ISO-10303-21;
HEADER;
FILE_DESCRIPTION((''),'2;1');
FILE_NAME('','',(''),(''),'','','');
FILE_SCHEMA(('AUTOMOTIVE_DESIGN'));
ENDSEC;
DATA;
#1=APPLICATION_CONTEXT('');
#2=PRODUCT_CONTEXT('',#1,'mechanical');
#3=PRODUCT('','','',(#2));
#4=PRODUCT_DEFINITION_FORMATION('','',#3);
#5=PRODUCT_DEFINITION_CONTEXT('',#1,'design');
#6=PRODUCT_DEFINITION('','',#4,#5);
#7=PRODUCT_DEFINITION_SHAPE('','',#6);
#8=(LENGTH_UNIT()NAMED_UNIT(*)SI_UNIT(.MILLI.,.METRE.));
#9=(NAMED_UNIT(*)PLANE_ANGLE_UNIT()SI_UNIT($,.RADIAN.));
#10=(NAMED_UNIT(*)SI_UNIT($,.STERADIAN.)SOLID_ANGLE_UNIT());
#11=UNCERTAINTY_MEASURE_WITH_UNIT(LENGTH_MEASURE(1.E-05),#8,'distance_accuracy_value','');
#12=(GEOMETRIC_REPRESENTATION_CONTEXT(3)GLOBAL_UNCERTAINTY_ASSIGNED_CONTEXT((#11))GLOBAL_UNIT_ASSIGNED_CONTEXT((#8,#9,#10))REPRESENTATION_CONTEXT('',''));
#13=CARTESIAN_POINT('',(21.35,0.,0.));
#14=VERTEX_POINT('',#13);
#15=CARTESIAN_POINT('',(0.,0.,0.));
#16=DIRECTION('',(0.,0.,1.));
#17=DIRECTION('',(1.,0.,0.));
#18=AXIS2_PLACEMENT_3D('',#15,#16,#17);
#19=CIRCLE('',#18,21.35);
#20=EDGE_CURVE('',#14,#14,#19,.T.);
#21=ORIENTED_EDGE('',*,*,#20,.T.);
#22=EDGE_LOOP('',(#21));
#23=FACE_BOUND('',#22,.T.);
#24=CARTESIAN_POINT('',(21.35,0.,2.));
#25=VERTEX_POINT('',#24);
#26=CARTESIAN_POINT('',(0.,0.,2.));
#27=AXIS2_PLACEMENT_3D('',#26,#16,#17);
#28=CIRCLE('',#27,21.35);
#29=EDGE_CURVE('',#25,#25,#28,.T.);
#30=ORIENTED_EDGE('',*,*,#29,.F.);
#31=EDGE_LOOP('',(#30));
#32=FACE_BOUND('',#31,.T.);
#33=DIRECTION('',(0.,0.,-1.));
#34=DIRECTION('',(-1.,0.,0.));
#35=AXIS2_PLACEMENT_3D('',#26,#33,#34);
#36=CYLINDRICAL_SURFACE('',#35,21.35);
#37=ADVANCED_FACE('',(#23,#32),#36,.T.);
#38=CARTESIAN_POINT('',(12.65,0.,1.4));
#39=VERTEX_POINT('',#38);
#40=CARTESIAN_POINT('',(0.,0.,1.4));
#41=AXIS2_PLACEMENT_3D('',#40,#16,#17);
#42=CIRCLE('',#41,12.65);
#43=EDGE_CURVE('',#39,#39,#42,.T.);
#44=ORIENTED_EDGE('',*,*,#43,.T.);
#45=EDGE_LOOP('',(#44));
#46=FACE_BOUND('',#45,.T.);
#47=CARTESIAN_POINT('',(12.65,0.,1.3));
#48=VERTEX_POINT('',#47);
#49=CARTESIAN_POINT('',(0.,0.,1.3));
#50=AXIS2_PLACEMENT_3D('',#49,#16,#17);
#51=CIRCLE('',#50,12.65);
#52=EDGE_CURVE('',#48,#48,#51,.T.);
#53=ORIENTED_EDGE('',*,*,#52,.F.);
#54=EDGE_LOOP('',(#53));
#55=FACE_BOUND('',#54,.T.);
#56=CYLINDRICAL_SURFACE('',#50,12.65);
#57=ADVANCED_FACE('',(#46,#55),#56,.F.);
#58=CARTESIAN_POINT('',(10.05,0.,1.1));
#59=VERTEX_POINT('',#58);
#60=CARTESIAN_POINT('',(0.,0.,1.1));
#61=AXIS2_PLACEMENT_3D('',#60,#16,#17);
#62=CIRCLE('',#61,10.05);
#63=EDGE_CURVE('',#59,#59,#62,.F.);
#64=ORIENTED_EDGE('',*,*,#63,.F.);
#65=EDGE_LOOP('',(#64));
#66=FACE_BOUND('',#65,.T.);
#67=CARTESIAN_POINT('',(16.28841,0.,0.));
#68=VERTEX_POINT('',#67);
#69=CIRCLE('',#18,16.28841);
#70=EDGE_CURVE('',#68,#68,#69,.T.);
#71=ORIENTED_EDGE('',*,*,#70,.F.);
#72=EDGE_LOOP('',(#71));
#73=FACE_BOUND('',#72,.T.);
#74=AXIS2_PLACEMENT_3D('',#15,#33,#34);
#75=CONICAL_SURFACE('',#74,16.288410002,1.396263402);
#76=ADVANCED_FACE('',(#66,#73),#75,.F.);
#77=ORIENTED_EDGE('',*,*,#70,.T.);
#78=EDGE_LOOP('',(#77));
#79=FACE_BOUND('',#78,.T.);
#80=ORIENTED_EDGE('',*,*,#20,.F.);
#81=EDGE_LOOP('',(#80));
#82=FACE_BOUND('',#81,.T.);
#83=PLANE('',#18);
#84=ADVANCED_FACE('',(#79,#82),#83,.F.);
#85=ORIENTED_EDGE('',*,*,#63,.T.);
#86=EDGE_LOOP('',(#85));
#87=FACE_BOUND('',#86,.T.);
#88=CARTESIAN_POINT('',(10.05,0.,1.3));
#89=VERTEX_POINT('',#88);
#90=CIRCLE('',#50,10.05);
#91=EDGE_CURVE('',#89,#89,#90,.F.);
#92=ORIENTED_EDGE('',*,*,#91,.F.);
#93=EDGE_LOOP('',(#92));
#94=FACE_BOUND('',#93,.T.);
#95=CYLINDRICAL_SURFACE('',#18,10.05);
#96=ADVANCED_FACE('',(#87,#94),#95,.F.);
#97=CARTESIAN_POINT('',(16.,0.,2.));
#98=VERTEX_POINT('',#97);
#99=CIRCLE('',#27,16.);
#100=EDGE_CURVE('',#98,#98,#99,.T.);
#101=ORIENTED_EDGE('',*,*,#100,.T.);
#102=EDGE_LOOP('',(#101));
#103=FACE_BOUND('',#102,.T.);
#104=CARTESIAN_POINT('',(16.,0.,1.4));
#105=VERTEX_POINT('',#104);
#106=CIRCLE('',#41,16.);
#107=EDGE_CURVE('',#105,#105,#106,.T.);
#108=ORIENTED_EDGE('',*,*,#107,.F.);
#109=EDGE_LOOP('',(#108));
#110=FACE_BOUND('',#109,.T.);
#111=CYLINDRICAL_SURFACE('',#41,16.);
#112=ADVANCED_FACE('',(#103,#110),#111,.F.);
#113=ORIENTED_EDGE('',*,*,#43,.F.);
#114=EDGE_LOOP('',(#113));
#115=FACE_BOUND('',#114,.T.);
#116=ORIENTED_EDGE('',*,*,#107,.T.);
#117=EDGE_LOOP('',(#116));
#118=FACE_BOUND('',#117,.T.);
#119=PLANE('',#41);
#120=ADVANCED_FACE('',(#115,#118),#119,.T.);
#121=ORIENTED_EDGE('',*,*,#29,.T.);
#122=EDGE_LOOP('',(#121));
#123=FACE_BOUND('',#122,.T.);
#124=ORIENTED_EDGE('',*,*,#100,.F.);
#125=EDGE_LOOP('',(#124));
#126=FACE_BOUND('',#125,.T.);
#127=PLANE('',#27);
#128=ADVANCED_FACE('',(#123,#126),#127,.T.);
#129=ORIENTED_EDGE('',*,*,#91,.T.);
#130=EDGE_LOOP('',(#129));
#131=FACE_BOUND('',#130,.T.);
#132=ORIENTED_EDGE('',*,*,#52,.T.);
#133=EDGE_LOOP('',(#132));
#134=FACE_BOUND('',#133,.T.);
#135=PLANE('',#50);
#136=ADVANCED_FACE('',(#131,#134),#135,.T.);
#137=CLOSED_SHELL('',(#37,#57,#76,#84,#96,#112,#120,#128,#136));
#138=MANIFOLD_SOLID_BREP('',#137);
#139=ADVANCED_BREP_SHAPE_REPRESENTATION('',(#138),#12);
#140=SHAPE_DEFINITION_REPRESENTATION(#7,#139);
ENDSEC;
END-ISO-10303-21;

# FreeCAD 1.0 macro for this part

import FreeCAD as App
import Part
import Sketcher

V = App.Vector


def edges_at(feature, points):
    """Names of the edges that pass closest to the given points."""
    edges = feature.Shape.Edges
    near = lambda p: min(range(len(edges)), key=lambda i: edges[i].distToShape(Part.Vertex(*p))[0])
    return sorted({f"Edge{near(p) + 1}" for p in points})

doc = App.newDocument("Part")
body = doc.addObject("PartDesign::Body", "Body")

# Sketch on XY plane
sketch1 = doc.addObject("Sketcher::SketchObject", "Sketch")
body.addObject(sketch1)
sketch1.AttachmentSupport = (doc.XY_Plane, [""])
sketch1.MapMode = "FlatFace"
sketch1.addGeometry(Part.Circle(V(0, 0, 0), V(0, 0, 1), 21), False)
sketch1.addConstraint([
    Sketcher.Constraint("Coincident", 0, 3, -1, 1),
    Sketcher.Constraint("Diameter", 0, 42.7),
])
pad1 = doc.addObject("PartDesign::Pad", "Pad")
body.addObject(pad1)
pad1.Profile = sketch1
pad1.Length = 2

# Sketch on XY plane
sketch2 = doc.addObject("Sketcher::SketchObject", "Sketch001")
body.addObject(sketch2)
sketch2.AttachmentSupport = (doc.XY_Plane, [""])
sketch2.MapMode = "FlatFace"
sketch2.AttachmentOffset = App.Placement(V(0, 0, 2), App.Rotation())
sketch2.addGeometry(Part.Circle(V(0, 0, 0), V(0, 0, 1), 10), False)
sketch2.addConstraint([
    Sketcher.Constraint("Coincident", 0, 3, -1, 1),
    Sketcher.Constraint("Diameter", 0, 20.1),
])
pocket1 = doc.addObject("PartDesign::Pocket", "Pocket")
body.addObject(pocket1)
pocket1.Profile = sketch2
pocket1.Type = "ThroughAll"

# Sketch on XY plane
sketch3 = doc.addObject("Sketcher::SketchObject", "Sketch002")
body.addObject(sketch3)
sketch3.AttachmentSupport = (doc.XY_Plane, [""])
sketch3.MapMode = "FlatFace"
sketch3.AttachmentOffset = App.Placement(V(0, 0, 2), App.Rotation())
sketch3.addGeometry(Part.Circle(V(0, 0, 0), V(0, 0, 1), 16), False)
sketch3.addConstraint([
    Sketcher.Constraint("Coincident", 0, 3, -1, 1),
    Sketcher.Constraint("Diameter", 0, 32.0),
])
pocket2 = doc.addObject("PartDesign::Pocket", "Pocket001")
body.addObject(pocket2)
pocket2.Profile = sketch3
pocket2.Length = 0.6
doc.recompute()

chamfer = doc.addObject("PartDesign::Chamfer", "Chamfer")
body.addObject(chamfer)
chamfer.Base = (pocket2, edges_at(pocket2, [(-10.05, 0, 0)]))
chamfer.ChamferType = "Two distances"
chamfer.Size = 1.1
chamfer.Size2 = 6.23841
chamfer.FlipDirection = True

# Sketch on XY plane
sketch4 = doc.addObject("Sketcher::SketchObject", "Sketch003")
body.addObject(sketch4)
sketch4.AttachmentSupport = (doc.XY_Plane, [""])
sketch4.MapMode = "FlatFace"
sketch4.AttachmentOffset = App.Placement(V(0, 0, 1.4), App.Rotation())
sketch4.addGeometry(Part.Circle(V(0, 0, 0), V(0, 0, 1), 13), False)
sketch4.addConstraint([
    Sketcher.Constraint("Coincident", 0, 3, -1, 1),
    Sketcher.Constraint("Diameter", 0, 25.3),
])
pocket3 = doc.addObject("PartDesign::Pocket", "Pocket002")
body.addObject(pocket3)
pocket3.Profile = sketch4
pocket3.Length = 0.1

doc.recompute()
